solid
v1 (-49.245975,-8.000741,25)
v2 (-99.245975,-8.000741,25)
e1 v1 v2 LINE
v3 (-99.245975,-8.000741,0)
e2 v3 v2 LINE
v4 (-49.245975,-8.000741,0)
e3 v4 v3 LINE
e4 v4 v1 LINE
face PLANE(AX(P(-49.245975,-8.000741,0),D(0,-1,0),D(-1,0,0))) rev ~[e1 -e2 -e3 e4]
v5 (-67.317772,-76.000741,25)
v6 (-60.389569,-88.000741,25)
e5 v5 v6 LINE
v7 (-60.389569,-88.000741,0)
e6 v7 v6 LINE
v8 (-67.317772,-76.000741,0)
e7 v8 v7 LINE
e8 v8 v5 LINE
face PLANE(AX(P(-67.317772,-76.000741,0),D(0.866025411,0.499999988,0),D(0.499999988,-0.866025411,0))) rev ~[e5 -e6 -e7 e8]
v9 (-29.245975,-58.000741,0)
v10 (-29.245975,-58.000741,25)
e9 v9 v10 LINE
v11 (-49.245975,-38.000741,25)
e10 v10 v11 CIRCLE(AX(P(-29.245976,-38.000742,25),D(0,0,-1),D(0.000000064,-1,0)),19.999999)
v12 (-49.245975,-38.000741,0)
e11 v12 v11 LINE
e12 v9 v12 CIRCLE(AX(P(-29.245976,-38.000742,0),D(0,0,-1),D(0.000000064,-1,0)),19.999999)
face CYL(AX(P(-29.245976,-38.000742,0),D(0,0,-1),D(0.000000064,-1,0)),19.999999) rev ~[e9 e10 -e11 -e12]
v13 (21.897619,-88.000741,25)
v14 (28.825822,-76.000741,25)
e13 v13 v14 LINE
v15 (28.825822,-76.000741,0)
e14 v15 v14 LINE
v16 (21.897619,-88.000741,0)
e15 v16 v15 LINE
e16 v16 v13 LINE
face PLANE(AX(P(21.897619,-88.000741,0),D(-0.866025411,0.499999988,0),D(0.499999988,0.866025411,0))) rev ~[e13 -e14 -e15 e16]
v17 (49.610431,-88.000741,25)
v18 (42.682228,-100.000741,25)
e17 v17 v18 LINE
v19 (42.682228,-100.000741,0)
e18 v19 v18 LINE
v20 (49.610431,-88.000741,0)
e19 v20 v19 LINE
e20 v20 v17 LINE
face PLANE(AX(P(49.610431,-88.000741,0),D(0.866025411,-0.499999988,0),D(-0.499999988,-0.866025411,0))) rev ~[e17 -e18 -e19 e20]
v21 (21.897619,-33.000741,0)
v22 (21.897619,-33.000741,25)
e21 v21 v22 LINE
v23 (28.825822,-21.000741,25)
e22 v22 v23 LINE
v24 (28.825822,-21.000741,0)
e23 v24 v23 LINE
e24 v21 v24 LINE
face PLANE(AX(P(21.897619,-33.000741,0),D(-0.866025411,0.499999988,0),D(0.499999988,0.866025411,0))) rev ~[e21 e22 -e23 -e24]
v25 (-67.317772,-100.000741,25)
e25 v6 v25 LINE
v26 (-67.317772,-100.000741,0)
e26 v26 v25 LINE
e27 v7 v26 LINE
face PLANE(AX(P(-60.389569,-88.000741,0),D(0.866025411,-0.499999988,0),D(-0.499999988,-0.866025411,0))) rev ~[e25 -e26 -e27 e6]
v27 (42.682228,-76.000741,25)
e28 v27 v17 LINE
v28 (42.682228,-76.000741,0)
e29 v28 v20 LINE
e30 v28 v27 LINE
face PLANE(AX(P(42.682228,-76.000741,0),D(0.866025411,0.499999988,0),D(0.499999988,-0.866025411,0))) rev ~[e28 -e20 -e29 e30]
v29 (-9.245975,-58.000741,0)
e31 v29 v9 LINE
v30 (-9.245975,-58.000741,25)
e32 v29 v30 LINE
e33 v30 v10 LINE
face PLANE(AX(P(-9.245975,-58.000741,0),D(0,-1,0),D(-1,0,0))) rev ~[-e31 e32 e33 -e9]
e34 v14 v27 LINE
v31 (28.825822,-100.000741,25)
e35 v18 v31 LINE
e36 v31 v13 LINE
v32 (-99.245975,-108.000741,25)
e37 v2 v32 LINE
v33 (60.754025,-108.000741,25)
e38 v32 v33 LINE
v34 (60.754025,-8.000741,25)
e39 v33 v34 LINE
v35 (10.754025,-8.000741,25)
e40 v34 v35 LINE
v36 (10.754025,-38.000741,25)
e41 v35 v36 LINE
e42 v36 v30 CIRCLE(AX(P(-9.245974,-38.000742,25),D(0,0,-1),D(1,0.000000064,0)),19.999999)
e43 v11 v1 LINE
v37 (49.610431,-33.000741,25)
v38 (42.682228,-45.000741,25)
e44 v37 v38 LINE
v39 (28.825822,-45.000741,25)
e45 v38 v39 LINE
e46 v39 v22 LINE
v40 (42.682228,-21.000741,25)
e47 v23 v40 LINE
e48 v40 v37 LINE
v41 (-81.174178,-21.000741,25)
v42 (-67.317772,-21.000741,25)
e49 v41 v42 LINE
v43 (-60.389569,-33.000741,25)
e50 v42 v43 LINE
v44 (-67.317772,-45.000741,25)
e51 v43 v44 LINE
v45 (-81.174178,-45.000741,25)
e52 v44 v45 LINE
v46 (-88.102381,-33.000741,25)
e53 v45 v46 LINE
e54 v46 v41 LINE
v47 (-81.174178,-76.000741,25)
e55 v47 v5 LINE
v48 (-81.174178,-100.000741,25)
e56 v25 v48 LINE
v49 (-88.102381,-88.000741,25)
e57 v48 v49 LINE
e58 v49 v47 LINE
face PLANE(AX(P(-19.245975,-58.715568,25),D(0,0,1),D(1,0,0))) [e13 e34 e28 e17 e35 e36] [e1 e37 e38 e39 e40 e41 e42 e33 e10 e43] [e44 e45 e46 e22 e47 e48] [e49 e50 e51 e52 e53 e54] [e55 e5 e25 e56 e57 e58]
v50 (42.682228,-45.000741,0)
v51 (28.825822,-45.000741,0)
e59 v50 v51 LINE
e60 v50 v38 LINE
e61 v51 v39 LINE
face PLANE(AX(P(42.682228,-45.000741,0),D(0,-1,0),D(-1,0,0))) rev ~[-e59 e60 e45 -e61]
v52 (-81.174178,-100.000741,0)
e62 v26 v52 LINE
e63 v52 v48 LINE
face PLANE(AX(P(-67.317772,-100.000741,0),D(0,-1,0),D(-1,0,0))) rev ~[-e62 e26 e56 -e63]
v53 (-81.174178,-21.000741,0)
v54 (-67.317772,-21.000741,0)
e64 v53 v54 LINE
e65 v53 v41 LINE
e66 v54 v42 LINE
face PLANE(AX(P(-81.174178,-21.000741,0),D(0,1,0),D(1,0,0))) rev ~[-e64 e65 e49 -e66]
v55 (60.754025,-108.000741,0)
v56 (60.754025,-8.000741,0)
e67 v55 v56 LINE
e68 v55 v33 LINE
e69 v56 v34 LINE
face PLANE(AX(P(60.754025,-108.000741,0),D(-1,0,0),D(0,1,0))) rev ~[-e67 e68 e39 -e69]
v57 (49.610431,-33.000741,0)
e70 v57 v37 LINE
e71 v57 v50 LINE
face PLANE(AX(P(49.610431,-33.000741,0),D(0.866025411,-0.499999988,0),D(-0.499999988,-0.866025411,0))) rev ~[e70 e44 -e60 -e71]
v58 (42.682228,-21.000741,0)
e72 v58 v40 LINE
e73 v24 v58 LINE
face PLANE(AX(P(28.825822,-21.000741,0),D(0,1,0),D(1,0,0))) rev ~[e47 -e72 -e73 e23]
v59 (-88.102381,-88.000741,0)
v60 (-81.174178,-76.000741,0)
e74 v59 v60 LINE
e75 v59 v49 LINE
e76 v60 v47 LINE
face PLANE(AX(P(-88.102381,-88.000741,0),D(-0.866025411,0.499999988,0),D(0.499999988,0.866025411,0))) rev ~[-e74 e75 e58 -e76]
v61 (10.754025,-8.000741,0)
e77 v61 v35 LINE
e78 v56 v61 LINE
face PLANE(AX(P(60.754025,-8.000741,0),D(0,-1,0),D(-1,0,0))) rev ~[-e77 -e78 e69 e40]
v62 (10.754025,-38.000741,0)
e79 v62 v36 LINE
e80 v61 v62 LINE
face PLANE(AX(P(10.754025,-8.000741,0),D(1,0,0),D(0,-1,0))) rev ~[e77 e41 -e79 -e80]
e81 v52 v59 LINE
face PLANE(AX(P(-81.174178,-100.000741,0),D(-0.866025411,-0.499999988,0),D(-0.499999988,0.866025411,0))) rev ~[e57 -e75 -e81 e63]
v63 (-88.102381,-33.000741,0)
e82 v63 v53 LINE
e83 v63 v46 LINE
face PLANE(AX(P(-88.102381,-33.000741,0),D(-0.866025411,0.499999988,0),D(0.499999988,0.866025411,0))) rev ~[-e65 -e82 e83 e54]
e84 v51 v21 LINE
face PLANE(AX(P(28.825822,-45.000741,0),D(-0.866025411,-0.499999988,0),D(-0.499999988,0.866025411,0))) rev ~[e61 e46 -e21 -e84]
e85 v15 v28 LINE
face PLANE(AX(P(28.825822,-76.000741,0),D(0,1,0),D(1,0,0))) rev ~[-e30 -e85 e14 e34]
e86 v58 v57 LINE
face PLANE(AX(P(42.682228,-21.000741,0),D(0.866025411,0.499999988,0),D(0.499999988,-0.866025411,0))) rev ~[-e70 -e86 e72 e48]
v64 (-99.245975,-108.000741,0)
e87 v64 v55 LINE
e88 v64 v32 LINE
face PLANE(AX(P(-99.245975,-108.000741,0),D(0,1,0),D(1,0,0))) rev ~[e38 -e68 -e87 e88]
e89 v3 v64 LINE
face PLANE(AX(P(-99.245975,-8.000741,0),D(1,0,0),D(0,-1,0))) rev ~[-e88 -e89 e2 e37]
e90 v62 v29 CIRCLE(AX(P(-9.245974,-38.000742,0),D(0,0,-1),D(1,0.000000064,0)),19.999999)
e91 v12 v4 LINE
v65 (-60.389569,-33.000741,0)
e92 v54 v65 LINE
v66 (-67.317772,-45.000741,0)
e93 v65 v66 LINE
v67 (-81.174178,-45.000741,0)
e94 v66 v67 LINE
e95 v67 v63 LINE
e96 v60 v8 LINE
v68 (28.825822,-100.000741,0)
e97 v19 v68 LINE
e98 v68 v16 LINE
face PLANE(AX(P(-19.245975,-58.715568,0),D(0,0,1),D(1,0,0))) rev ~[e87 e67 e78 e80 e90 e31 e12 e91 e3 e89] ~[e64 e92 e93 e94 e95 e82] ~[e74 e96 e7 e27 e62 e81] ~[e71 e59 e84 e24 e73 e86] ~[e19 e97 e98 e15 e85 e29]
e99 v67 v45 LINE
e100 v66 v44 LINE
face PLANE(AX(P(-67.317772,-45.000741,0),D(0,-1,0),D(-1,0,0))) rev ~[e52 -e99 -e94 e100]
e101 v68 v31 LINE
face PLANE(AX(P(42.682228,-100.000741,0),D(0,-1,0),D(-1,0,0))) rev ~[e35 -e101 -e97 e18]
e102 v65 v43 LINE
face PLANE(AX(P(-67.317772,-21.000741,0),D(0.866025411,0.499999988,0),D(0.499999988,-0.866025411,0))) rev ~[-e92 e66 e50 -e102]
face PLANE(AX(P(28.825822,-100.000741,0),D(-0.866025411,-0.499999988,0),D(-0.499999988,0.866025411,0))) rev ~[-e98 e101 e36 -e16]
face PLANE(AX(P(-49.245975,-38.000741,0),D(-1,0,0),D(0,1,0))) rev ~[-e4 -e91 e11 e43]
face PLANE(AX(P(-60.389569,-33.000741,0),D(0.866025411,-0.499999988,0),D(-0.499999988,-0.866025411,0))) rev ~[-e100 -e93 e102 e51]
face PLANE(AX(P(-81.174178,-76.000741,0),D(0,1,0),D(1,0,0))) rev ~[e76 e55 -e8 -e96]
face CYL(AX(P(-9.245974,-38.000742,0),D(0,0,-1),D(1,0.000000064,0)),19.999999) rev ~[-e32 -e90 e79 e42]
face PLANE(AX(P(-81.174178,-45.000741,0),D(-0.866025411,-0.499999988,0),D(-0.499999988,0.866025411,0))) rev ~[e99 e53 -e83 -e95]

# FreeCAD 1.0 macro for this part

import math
import FreeCAD as App
import Part
import Sketcher
Q = App.Units.Quantity


def add_polygon(sketch, points):
    """Adds a closed chain of lines whose ends are joined by coincident constraints."""
    first, n = sketch.GeometryCount, len(points)
    for a, b in zip(points, points[1:] + points[:1]):
        sketch.addGeometry(Part.LineSegment(App.Vector(*a, 0), App.Vector(*b, 0)), False)
    for i in range(n):
        sketch.addConstraint(Sketcher.Constraint("Coincident", first + i, 2, first + (i + 1) % n, 1))

doc = App.newDocument("Part")
body = doc.addObject("PartDesign::Body", "Body")

# Sketch on XY plane
sketch1 = body.newObject("Sketcher::SketchObject", "Sketch")
sketch1.AttachmentSupport = (doc.getObject("XY_Plane"), [""])
sketch1.MapMode = "FlatFace"
sketch1.addGeometry(Part.LineSegment(App.Vector(-99, -8, 0), App.Vector(-99, -108, 0)), False)  # 0
sketch1.addGeometry(Part.LineSegment(App.Vector(-99, -108, 0), App.Vector(61, -108, 0)), False)  # 1
sketch1.addGeometry(Part.LineSegment(App.Vector(61, -108, 0), App.Vector(61, -8, 0)), False)  # 2
sketch1.addGeometry(Part.LineSegment(App.Vector(61, -8, 0), App.Vector(11, -8, 0)), False)  # 3
sketch1.addGeometry(Part.LineSegment(App.Vector(11, -8, 0), App.Vector(11, -38, 0)), False)  # 4
sketch1.addGeometry(Part.ArcOfCircle(Part.Circle(App.Vector(-9, -38, 0), App.Vector(0, 0, 1), 20), math.radians(-90), math.radians(0)), False)  # 5
sketch1.addGeometry(Part.LineSegment(App.Vector(-9, -58, 0), App.Vector(-29, -58, 0)), False)  # 6
sketch1.addGeometry(Part.ArcOfCircle(Part.Circle(App.Vector(-29, -38, 0), App.Vector(0, 0, 1), 20), math.radians(180), math.radians(270)), False)  # 7
sketch1.addGeometry(Part.LineSegment(App.Vector(-49, -38, 0), App.Vector(-49, -8, 0)), False)  # 8
sketch1.addGeometry(Part.LineSegment(App.Vector(-49, -8, 0), App.Vector(-99, -8, 0)), False)  # 9
add_polygon(sketch1, [(-81, -100), (-88, -88), (-81, -76), (-67, -76), (-60, -88), (-67, -100)])  # lines 10-15
add_polygon(sketch1, [(29, -100), (22, -88), (29, -76), (43, -76), (50, -88), (43, -100)])  # lines 16-21
add_polygon(sketch1, [(-81, -45), (-88, -33), (-81, -21), (-67, -21), (-60, -33), (-67, -45)])  # lines 22-27
add_polygon(sketch1, [(43, -21), (50, -33), (43, -45), (29, -45), (22, -33), (29, -21)])  # lines 28-33
sketch1.addConstraint([
    Sketcher.Constraint("Coincident", 0, 2, 1, 1),
    Sketcher.Constraint("Coincident", 1, 2, 2, 1),
    Sketcher.Constraint("Coincident", 2, 2, 3, 1),
    Sketcher.Constraint("Coincident", 3, 2, 4, 1),
    Sketcher.Constraint("Tangent", 4, 2, 5, 2),
    Sketcher.Constraint("Tangent", 5, 1, 6, 1),
    Sketcher.Constraint("Tangent", 6, 2, 7, 2),
    Sketcher.Constraint("Tangent", 7, 1, 8, 1),
    Sketcher.Constraint("Coincident", 8, 2, 9, 1),
    Sketcher.Constraint("Coincident", 9, 2, 0, 1),
    Sketcher.Constraint("Vertical", 0),
    Sketcher.Constraint("Horizontal", 1),
    Sketcher.Constraint("Vertical", 2),
    Sketcher.Constraint("Horizontal", 3),
    Sketcher.Constraint("Vertical", 4),
    Sketcher.Constraint("Horizontal", 6),
    Sketcher.Constraint("Vertical", 8),
    Sketcher.Constraint("Horizontal", 9),
    Sketcher.Constraint("Horizontal", 12),
    Sketcher.Constraint("Horizontal", 15),
    Sketcher.Constraint("Horizontal", 18),
    Sketcher.Constraint("Horizontal", 21),
    Sketcher.Constraint("Horizontal", 24),
    Sketcher.Constraint("Horizontal", 27),
    Sketcher.Constraint("Horizontal", 30),
    Sketcher.Constraint("Horizontal", 33),
    Sketcher.Constraint("Equal", 5, 7),
    Sketcher.Constraint("Parallel", 10, 13),
    Sketcher.Constraint("Parallel", 11, 14),
    Sketcher.Constraint("Parallel", 13, 16),
    Sketcher.Constraint("Parallel", 14, 17),
    Sketcher.Constraint("Parallel", 16, 19),
    Sketcher.Constraint("Parallel", 17, 20),
    Sketcher.Constraint("Parallel", 19, 22),
    Sketcher.Constraint("Parallel", 20, 23),
    Sketcher.Constraint("Parallel", 22, 25),
    Sketcher.Constraint("Parallel", 23, 26),
    Sketcher.Constraint("Parallel", 25, 28),
    Sketcher.Constraint("Parallel", 26, 29),
    Sketcher.Constraint("Parallel", 28, 31),
    Sketcher.Constraint("Parallel", 29, 32),
    Sketcher.Constraint("Horizontal", 3, 2, 8, 2),
    Sketcher.Constraint("Horizontal", 10, 2, 13, 2),
    Sketcher.Constraint("Horizontal", 13, 2, 16, 2),
    Sketcher.Constraint("Horizontal", 12, 2, 17, 2),
    Sketcher.Constraint("Horizontal", 16, 2, 19, 2),
    Sketcher.Constraint("Horizontal", 15, 2, 20, 2),
    Sketcher.Constraint("Horizontal", 22, 2, 25, 2),
    Sketcher.Constraint("Horizontal", 25, 2, 28, 2),
    Sketcher.Constraint("Horizontal", 27, 2, 29, 2),
    Sketcher.Constraint("Horizontal", 28, 2, 31, 2),
    Sketcher.Constraint("Horizontal", 24, 2, 32, 2),
    Sketcher.Constraint("Vertical", 12, 2, 14, 2),
    Sketcher.Constraint("Vertical", 11, 2, 15, 2),
    Sketcher.Constraint("Vertical", 10, 2, 22, 2),
    Sketcher.Constraint("Vertical", 15, 2, 23, 2),
    Sketcher.Constraint("Vertical", 14, 2, 24, 2),
    Sketcher.Constraint("Vertical", 24, 2, 26, 2),
    Sketcher.Constraint("Vertical", 19, 2, 28, 2),
    Sketcher.Constraint("Vertical", 21, 2, 30, 2),
    Sketcher.Constraint("Equal", 3, 9),
    Sketcher.Constraint("Equal", 15, 18),
    Sketcher.Constraint("Radius", 5, 19.999999),
    Sketcher.Constraint("DistanceX", 1, 1, 1, 2, 160.0),
    Sketcher.Constraint("DistanceX", 3, 2, 3, 1, 50.0),
    Sketcher.Constraint("DistanceY", 0, 2, 0, 1, 100.0),
    Sketcher.Constraint("DistanceY", 4, 2, 4, 1, 30.0),
    Sketcher.Constraint("Angle", 10, Q("119.999999 deg")),
    Sketcher.Constraint("DistanceY", 0, 2, 10, 2, 20.0),
    Sketcher.Constraint("DistanceY", 10, 2, 11, 2, 12.0),
    Sketcher.Constraint("DistanceY", 22, 2, 9, 2, 25.0),
    Sketcher.Constraint("DistanceX", 11, 2, 7, 3, 51.928202),
    Sketcher.Constraint("DistanceX", 12, 1, 12, 2, 13.856406),
    Sketcher.Constraint("DistanceY", 0, 2, -1, 1, 108.000741),
    Sketcher.Constraint("DistanceX", 10, 2, -1, 1, 88.102381),
    Sketcher.Constraint("DistanceX", -1, 1, 16, 2, 21.897619),
])
pad1 = body.newObject("PartDesign::Pad", "Pad")
pad1.Profile = sketch1
pad1.Length = 25

doc.recompute()
